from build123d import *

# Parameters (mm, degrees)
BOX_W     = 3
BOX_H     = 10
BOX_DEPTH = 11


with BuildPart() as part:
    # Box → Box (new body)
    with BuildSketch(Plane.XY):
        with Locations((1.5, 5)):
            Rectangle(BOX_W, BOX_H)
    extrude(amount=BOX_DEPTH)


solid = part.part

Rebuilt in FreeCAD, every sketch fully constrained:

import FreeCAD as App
import Part
import Sketcher

V = App.Vector


def add_polygon(sketch, points):
    """Adds a closed chain of lines whose ends are joined by coincident constraints."""
    first, n = sketch.GeometryCount, len(points)
    for a, b in zip(points, points[1:] + points[:1]):
        sketch.addGeometry(Part.LineSegment(App.Vector(*a, 0), App.Vector(*b, 0)), False)
    for i in range(n):
        sketch.addConstraint(Sketcher.Constraint("Coincident", first + i, 2, first + (i + 1) % n, 1))

doc = App.newDocument("Part")
body = doc.addObject("PartDesign::Body", "Body")

# Sketch on XY plane
sketch1 = body.newObject("Sketcher::SketchObject", "Sketch")
sketch1.AttachmentSupport = (doc.getObject("XY_Plane"), [""])
sketch1.MapMode = "FlatFace"
add_polygon(sketch1, [(0, 10), (0, 0), (3, 0), (3, 10)])  # lines 0-3
sketch1.addConstraint([
    Sketcher.Constraint("Vertical", 0),
    Sketcher.Constraint("Horizontal", 1),
    Sketcher.Constraint("Vertical", 2),
    Sketcher.Constraint("Horizontal", 3),
    Sketcher.Constraint("Coincident", 0, 2, -1, 1),
    Sketcher.Constraint("DistanceX", 1, 1, 1, 2, 3.0),
    Sketcher.Constraint("DistanceY", 0, 2, 0, 1, 10.0),
])
pad1 = body.newObject("PartDesign::Pad", "Pad")
pad1.Profile = sketch1
pad1.Length = 11

doc.recompute()
